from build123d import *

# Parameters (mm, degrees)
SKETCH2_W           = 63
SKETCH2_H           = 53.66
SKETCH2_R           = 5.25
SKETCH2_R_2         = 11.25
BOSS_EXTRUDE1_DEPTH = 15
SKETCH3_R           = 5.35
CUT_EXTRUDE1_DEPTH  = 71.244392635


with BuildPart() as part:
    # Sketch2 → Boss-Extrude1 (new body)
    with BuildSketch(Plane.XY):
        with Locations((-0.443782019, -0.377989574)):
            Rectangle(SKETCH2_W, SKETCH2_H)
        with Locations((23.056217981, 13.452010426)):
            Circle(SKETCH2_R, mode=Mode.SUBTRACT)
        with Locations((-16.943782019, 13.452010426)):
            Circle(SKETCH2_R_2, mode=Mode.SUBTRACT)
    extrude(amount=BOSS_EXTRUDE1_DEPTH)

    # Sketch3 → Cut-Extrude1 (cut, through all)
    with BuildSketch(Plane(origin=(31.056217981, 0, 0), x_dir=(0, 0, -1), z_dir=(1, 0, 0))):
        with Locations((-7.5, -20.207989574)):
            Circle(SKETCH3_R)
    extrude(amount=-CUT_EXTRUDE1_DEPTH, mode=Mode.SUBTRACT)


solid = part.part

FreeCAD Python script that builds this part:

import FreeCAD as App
import Part
import Sketcher


def add_polygon(sketch, points):
    """Adds a closed chain of lines whose ends are joined by coincident constraints."""
    first, n = sketch.GeometryCount, len(points)
    for a, b in zip(points, points[1:] + points[:1]):
        sketch.addGeometry(Part.LineSegment(App.Vector(*a, 0), App.Vector(*b, 0)), False)
    for i in range(n):
        sketch.addConstraint(Sketcher.Constraint("Coincident", first + i, 2, first + (i + 1) % n, 1))

doc = App.newDocument("Part")
body = doc.addObject("PartDesign::Body", "Body")

# Sketch on XY plane
sketch1 = body.newObject("Sketcher::SketchObject", "Sketch")
sketch1.AttachmentSupport = (doc.getObject("XY_Plane"), [""])
sketch1.MapMode = "FlatFace"
add_polygon(sketch1, [(-31.943782, 26.45201), (-31.943782, -27.20799), (31.056218, -27.20799), (31.056218, 26.45201)])  # lines 0-3
sketch1.addGeometry(Part.Circle(App.Vector(-16.943782, 13.45201, 0), App.Vector(0, 0, 1), 11.25), False)  # 4
sketch1.addGeometry(Part.Circle(App.Vector(23.056218, 13.45201, 0), App.Vector(0, 0, 1), 5.25), False)  # 5
sketch1.addConstraint([
    Sketcher.Constraint("Vertical", 0),
    Sketcher.Constraint("Horizontal", 1),
    Sketcher.Constraint("Vertical", 2),
    Sketcher.Constraint("Horizontal", 3),
    Sketcher.Constraint("Horizontal", 4, 3, 5, 3),
    Sketcher.Constraint("Diameter", 4, 22.5),
    Sketcher.Constraint("Diameter", 5, 10.5),
    Sketcher.Constraint("DistanceX", 1, 1, 1, 2, 63.0),
    Sketcher.Constraint("DistanceX", 4, 3, 5, 3, 40.0),
    Sketcher.Constraint("DistanceX", 0, 2, 4, 3, 15.0),
    Sketcher.Constraint("DistanceY", 5, 3, 2, 2, 13.0),
    Sketcher.Constraint("DistanceY", 0, 2, 0, 1, 53.66),
    Sketcher.Constraint("DistanceY", -1, 1, 4, 3, 13.45201),
    Sketcher.Constraint("DistanceX", 4, 3, -1, 1, 16.943782),
])
pad1 = body.newObject("PartDesign::Pad", "Pad")
pad1.Profile = sketch1
pad1.Length = 15

# Sketch on YZ plane
sketch2 = body.newObject("Sketcher::SketchObject", "Sketch001")
sketch2.AttachmentSupport = (doc.getObject("YZ_Plane"), [""])
sketch2.MapMode = "FlatFace"
sketch2.AttachmentOffset = App.Placement(App.Vector(0, 0, 31.056218), App.Rotation())
sketch2.addGeometry(Part.Circle(App.Vector(-20.20799, 7.5, 0), App.Vector(0, 0, 1), 5.35), False)
sketch2.addConstraint([
    Sketcher.Constraint("Diameter", 0, 10.7),
    Sketcher.Constraint("DistanceY", -1, 1, 0, 3, 7.5),
    Sketcher.Constraint("DistanceX", 0, 3, -1, 1, 20.20799),
])
pocket1 = body.newObject("PartDesign::Pocket", "Pocket")
pocket1.Profile = sketch2
pocket1.Type = "ThroughAll"

doc.recompute()
